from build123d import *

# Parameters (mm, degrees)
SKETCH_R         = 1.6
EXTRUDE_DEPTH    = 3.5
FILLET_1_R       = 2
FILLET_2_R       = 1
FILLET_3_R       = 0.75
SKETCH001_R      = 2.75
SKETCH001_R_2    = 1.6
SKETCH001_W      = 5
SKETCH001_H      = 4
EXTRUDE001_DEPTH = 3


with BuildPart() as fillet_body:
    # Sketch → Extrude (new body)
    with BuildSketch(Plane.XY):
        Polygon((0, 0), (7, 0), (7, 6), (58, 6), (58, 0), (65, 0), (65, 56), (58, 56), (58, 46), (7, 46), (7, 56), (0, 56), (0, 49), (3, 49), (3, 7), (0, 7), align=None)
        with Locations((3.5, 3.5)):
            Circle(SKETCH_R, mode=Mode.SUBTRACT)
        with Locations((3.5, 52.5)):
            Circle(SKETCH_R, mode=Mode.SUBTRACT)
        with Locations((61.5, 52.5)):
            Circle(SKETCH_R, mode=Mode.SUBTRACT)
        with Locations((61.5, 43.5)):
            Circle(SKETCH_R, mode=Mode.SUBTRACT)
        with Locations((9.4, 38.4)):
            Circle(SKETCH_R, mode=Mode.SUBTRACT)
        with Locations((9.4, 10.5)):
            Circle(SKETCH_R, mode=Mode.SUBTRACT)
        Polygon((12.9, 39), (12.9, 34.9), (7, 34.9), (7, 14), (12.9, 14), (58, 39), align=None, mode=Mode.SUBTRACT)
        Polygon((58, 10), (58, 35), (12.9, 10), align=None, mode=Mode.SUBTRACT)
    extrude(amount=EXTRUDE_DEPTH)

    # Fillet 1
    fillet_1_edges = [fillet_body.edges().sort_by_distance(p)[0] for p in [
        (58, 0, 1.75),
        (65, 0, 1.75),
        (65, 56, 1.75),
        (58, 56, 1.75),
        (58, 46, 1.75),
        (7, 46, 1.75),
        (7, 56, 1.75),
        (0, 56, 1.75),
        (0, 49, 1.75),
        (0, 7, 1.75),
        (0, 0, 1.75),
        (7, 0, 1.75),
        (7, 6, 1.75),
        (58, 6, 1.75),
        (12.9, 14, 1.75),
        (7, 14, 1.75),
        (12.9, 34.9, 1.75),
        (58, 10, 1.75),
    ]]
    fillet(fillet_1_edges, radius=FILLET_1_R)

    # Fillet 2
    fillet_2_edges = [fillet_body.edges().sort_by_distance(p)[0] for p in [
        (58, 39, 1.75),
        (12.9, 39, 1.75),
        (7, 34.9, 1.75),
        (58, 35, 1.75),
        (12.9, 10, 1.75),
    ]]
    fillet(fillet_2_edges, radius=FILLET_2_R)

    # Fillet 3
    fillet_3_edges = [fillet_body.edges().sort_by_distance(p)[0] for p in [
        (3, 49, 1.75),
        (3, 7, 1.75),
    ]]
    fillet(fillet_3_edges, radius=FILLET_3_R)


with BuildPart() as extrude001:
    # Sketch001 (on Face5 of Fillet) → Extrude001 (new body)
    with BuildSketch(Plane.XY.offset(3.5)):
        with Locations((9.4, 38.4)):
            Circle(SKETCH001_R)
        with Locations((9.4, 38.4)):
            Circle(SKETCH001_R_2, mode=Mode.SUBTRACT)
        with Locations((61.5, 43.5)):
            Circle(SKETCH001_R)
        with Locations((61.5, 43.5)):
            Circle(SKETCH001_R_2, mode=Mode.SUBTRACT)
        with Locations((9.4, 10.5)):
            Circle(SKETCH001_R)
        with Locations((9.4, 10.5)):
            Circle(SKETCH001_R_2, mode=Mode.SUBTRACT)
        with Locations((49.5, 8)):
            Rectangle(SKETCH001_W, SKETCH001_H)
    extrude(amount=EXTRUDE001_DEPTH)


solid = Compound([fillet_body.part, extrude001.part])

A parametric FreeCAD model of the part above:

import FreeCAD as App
import Part
import Sketcher


def edges_at(feature, points):
    """Names of the edges that pass closest to the given points."""
    edges = feature.Shape.Edges
    near = lambda p: min(range(len(edges)), key=lambda i: edges[i].distToShape(Part.Vertex(*p))[0])
    return sorted({f"Edge{near(p) + 1}" for p in points})

doc = App.newDocument("Part")
body = doc.addObject("PartDesign::Body", "Body")

sketch1 = body.newObject("Sketcher::SketchObject", "Sketch")
sketch1.AttachmentSupport = (doc.getObject("XY_Plane"), [""])
sketch1.MapMode = "FlatFace"
sketch1.addGeometry([
    Part.LineSegment(App.Vector(0, 0, 0), App.Vector(7, 0, 0)),
    Part.LineSegment(App.Vector(7, 0, 0), App.Vector(7, 6, 0)),
    Part.LineSegment(App.Vector(7, 6, 0), App.Vector(58, 6, 0)),
    Part.LineSegment(App.Vector(58, 6, 0), App.Vector(58, 0, 0)),
    Part.LineSegment(App.Vector(58, 0, 0), App.Vector(65, 0, 0)),
    Part.LineSegment(App.Vector(65, 0, 0), App.Vector(65, 56, 0)),
    Part.LineSegment(App.Vector(65, 56, 0), App.Vector(58, 56, 0)),
    Part.LineSegment(App.Vector(58, 56, 0), App.Vector(58, 46, 0)),
    Part.LineSegment(App.Vector(58, 46, 0), App.Vector(7, 46, 0)),
    Part.LineSegment(App.Vector(7, 46, 0), App.Vector(7, 56, 0)),
    Part.LineSegment(App.Vector(7, 56, 0), App.Vector(0, 56, 0)),
    Part.LineSegment(App.Vector(0, 56, 0), App.Vector(0, 49, 0)),
    Part.LineSegment(App.Vector(0, 49, 0), App.Vector(3, 49, 0)),
    Part.LineSegment(App.Vector(3, 49, 0), App.Vector(3, 7, 0)),
    Part.LineSegment(App.Vector(3, 7, 0), App.Vector(0, 7, 0)),
    Part.LineSegment(App.Vector(0, 7, 0), App.Vector(0, 0, 0)),
    Part.Circle(App.Vector(3.5, 3.5, 0), App.Vector(0, 0, 1), 1.6),
    Part.Circle(App.Vector(9.4, 10.5, 0), App.Vector(0, 0, 1), 1.6),
    Part.LineSegment(App.Vector(58, 35, 0), App.Vector(58, 10, 0)),
    Part.LineSegment(App.Vector(58, 10, 0), App.Vector(12.9, 10, 0)),
    Part.LineSegment(App.Vector(12.9, 10, 0), App.Vector(58, 35, 0)),
    Part.LineSegment(App.Vector(12.9, 34.9, 0), App.Vector(12.9, 39, 0)),
    Part.LineSegment(App.Vector(12.9, 39, 0), App.Vector(58, 39, 0)),
    Part.LineSegment(App.Vector(58, 39, 0), App.Vector(12.9, 14, 0)),
    Part.LineSegment(App.Vector(12.9, 14, 0), App.Vector(7, 14, 0)),
    Part.LineSegment(App.Vector(7, 14, 0), App.Vector(7, 34.9, 0)),
    Part.LineSegment(App.Vector(7, 34.9, 0), App.Vector(12.9, 34.9, 0)),
    Part.Circle(App.Vector(9.4, 38.4, 0), App.Vector(0, 0, 1), 1.6),
    Part.Circle(App.Vector(3.5, 52.5, 0), App.Vector(0, 0, 1), 1.6),
    Part.Circle(App.Vector(61.5, 43.5, 0), App.Vector(0, 0, 1), 1.6),
    Part.Circle(App.Vector(61.5, 52.5, 0), App.Vector(0, 0, 1), 1.6),
], False)
sketch1.addConstraint([
    Sketcher.Constraint("Coincident", 0, 2, 1, 1),
    Sketcher.Constraint("Coincident", 1, 2, 2, 1),
    Sketcher.Constraint("Coincident", 2, 2, 3, 1),
    Sketcher.Constraint("Coincident", 3, 2, 4, 1),
    Sketcher.Constraint("Coincident", 4, 2, 5, 1),
    Sketcher.Constraint("Coincident", 5, 2, 6, 1),
    Sketcher.Constraint("Coincident", 6, 2, 7, 1),
    Sketcher.Constraint("Coincident", 7, 2, 8, 1),
    Sketcher.Constraint("Coincident", 8, 2, 9, 1),
    Sketcher.Constraint("Coincident", 9, 2, 10, 1),
    Sketcher.Constraint("Coincident", 10, 2, 11, 1),
    Sketcher.Constraint("Coincident", 11, 2, 12, 1),
    Sketcher.Constraint("Coincident", 12, 2, 13, 1),
    Sketcher.Constraint("Coincident", 13, 2, 14, 1),
    Sketcher.Constraint("Coincident", 14, 2, 15, 1),
    Sketcher.Constraint("Coincident", 15, 2, 0, 1),
    Sketcher.Constraint("Coincident", 18, 2, 19, 1),
    Sketcher.Constraint("Coincident", 19, 2, 20, 1),
    Sketcher.Constraint("Coincident", 20, 2, 18, 1),
    Sketcher.Constraint("Coincident", 21, 2, 22, 1),
    Sketcher.Constraint("Coincident", 22, 2, 23, 1),
    Sketcher.Constraint("Coincident", 23, 2, 24, 1),
    Sketcher.Constraint("Coincident", 24, 2, 25, 1),
    Sketcher.Constraint("Coincident", 25, 2, 26, 1),
    Sketcher.Constraint("Coincident", 26, 2, 21, 1),
    Sketcher.Constraint("Horizontal", 0),
    Sketcher.Constraint("Vertical", 1),
    Sketcher.Constraint("Horizontal", 2),
    Sketcher.Constraint("Vertical", 3),
    Sketcher.Constraint("Horizontal", 4),
    Sketcher.Constraint("Vertical", 5),
    Sketcher.Constraint("Horizontal", 6),
    Sketcher.Constraint("Vertical", 7),
    Sketcher.Constraint("Horizontal", 8),
    Sketcher.Constraint("Vertical", 9),
    Sketcher.Constraint("Horizontal", 10),
    Sketcher.Constraint("Vertical", 11),
    Sketcher.Constraint("Horizontal", 12),
    Sketcher.Constraint("Vertical", 13),
    Sketcher.Constraint("Horizontal", 14),
    Sketcher.Constraint("Vertical", 15),
    Sketcher.Constraint("Vertical", 18),
    Sketcher.Constraint("Horizontal", 19),
    Sketcher.Constraint("Vertical", 21),
    Sketcher.Constraint("Horizontal", 22),
    Sketcher.Constraint("Horizontal", 24),
    Sketcher.Constraint("Vertical", 25),
    Sketcher.Constraint("Horizontal", 26),
    Sketcher.Constraint("Coincident", 15, 2, -1, 1),
    Sketcher.Constraint("Equal", 16, 17),
    Sketcher.Constraint("Equal", 17, 27),
    Sketcher.Constraint("Equal", 27, 28),
    Sketcher.Constraint("Equal", 28, 29),
    Sketcher.Constraint("Equal", 29, 30),
    Sketcher.Constraint("PointOnObject", 3, 2, -1),
    Sketcher.Constraint("PointOnObject", 10, 2, -2),
    Sketcher.Constraint("Parallel", 20, 23),
    Sketcher.Constraint("Horizontal", 28, 3, 30, 3),
    Sketcher.Constraint("Horizontal", 6, 2, 9, 2),
    Sketcher.Constraint("Vertical", 17, 3, 27, 3),
    Sketcher.Constraint("Vertical", 16, 3, 28, 3),
    Sketcher.Constraint("Vertical", 29, 3, 30, 3),
    Sketcher.Constraint("Vertical", 3, 2, 6, 2),
    Sketcher.Constraint("Vertical", 1, 2, 8, 2),
    Sketcher.Constraint("Vertical", 7, 2, 18, 2),
    Sketcher.Constraint("Vertical", 19, 2, 21, 2),
    Sketcher.Constraint("Vertical", 20, 2, 22, 2),
    Sketcher.Constraint("Vertical", 21, 2, 23, 2),
    Sketcher.Constraint("Vertical", 9, 2, 24, 2),
    Sketcher.Constraint("Equal", 0, 4),
    Sketcher.Constraint("Equal", 10, 11),
    Sketcher.Constraint("Equal", 11, 15),
    Sketcher.Constraint("Diameter", 16, 3.2),
    Sketcher.Constraint("DistanceX", 0, 1, 0, 2, 7.0),
    Sketcher.Constraint("DistanceX", 2, 1, 2, 2, 51.0),
    Sketcher.Constraint("DistanceX", 12, 1, 12, 2, 3.0),
    Sketcher.Constraint("DistanceY", 1, 1, 1, 2, 6.0),
    Sketcher.Constraint("DistanceY", 5, 1, 5, 2, 56.0),
    Sketcher.Constraint("DistanceY", 7, 2, 7, 1, 10.0),
    Sketcher.Constraint("DistanceY", 18, 2, 18, 1, 25.0),
    Sketcher.Constraint("DistanceX", 19, 2, 19, 1, 45.1),
    Sketcher.Constraint("DistanceY", 21, 1, 21, 2, 4.1),
    Sketcher.Constraint("DistanceY", -1, 1, 18, 2, 10.0),
    Sketcher.Constraint("DistanceY", -1, 1, 21, 2, 39.0),
    Sketcher.Constraint("DistanceY", 16, 3, 17, 3, 7.0),
    Sketcher.Constraint("DistanceY", 17, 3, 28, 3, 42.0),
    Sketcher.Constraint("DistanceX", 28, 3, 29, 3, 58.0),
    Sketcher.Constraint("DistanceY", 29, 3, 28, 3, 9.0),
    Sketcher.Constraint("DistanceX", -1, 1, 16, 3, 3.5),
    Sketcher.Constraint("DistanceY", -1, 1, 16, 3, 3.5),
    Sketcher.Constraint("DistanceX", -1, 1, 17, 3, 9.4),
    Sketcher.Constraint("DistanceY", -1, 1, 27, 3, 38.4),
])
pad1 = body.newObject("PartDesign::Pad", "Pad")
pad1.Profile = sketch1
pad1.Length = 3.5
doc.recompute()

fillet = body.newObject("PartDesign::Fillet", "Fillet")
fillet.Base = (pad1, edges_at(pad1, [
    (58, 0, 1.75),
    (65, 0, 1.75),
    (65, 56, 1.75),
    (58, 56, 1.75),
    (58, 46, 1.75),
    (7, 46, 1.75),
    (7, 56, 1.75),
    (0, 56, 1.75),
    (0, 49, 1.75),
    (0, 7, 1.75),
    (0, 0, 1.75),
    (7, 0, 1.75),
    (7, 6, 1.75),
    (58, 6, 1.75),
    (12.9, 14, 1.75),
    (7, 14, 1.75),
    (12.9, 34.9, 1.75),
    (58, 10, 1.75),
]))
fillet.Radius = 2
doc.recompute()

fillet2 = body.newObject("PartDesign::Fillet", "Fillet001")
fillet2.Base = (fillet, edges_at(fillet, [
    (58, 39, 1.75),
    (12.9, 39, 1.75),
    (7, 34.9, 1.75),
    (58, 35, 1.75),
    (12.9, 10, 1.75),
]))
fillet2.Radius = 1
doc.recompute()

fillet3 = body.newObject("PartDesign::Fillet", "Fillet002")
fillet3.Base = (fillet2, edges_at(fillet2, [(3, 49, 1.75), (3, 7, 1.75)]))
fillet3.Radius = 0.75
body2 = doc.addObject("PartDesign::Body", "Body001")
body2.AllowCompound = True

sketch2 = body2.newObject("Sketcher::SketchObject", "Sketch001")
sketch2.AttachmentSupport = (doc.getObject("XY_Plane001"), [""])
sketch2.MapMode = "FlatFace"
sketch2.AttachmentOffset = App.Placement(App.Vector(0, 0, 3.5), App.Rotation())
sketch2.addGeometry([
    Part.Circle(App.Vector(9.4, 38.4, 0), App.Vector(0, 0, 1), 2.8),
    Part.Circle(App.Vector(9.4, 38.4, 0), App.Vector(0, 0, 1), 1.6),
    Part.Circle(App.Vector(61.5, 43.5, 0), App.Vector(0, 0, 1), 2.8),
    Part.Circle(App.Vector(61.5, 43.5, 0), App.Vector(0, 0, 1), 1.6),
    Part.Circle(App.Vector(9.4, 10.5, 0), App.Vector(0, 0, 1), 2.8),
    Part.Circle(App.Vector(9.4, 10.5, 0), App.Vector(0, 0, 1), 1.6),
    Part.LineSegment(App.Vector(47, 10, 0), App.Vector(47, 6, 0)),
    Part.LineSegment(App.Vector(47, 6, 0), App.Vector(52, 6, 0)),
    Part.LineSegment(App.Vector(52, 6, 0), App.Vector(52, 10, 0)),
    Part.LineSegment(App.Vector(52, 10, 0), App.Vector(47, 10, 0)),
], False)
sketch2.addConstraint([
    Sketcher.Constraint("Coincident", 6, 2, 7, 1),
    Sketcher.Constraint("Coincident", 7, 2, 8, 1),
    Sketcher.Constraint("Coincident", 8, 2, 9, 1),
    Sketcher.Constraint("Coincident", 9, 2, 6, 1),
    Sketcher.Constraint("Vertical", 6),
    Sketcher.Constraint("Horizontal", 7),
    Sketcher.Constraint("Vertical", 8),
    Sketcher.Constraint("Horizontal", 9),
    Sketcher.Constraint("Coincident", 1, 3, 0, 3),
    Sketcher.Constraint("Coincident", 3, 3, 2, 3),
    Sketcher.Constraint("Coincident", 5, 3, 4, 3),
    Sketcher.Constraint("Equal", 0, 2),
    Sketcher.Constraint("Equal", 1, 3),
    Sketcher.Constraint("Equal", 2, 4),
    Sketcher.Constraint("Equal", 3, 5),
    Sketcher.Constraint("Vertical", 1, 3, 4, 3),
    Sketcher.Constraint("Diameter", 0, 5.5),
    Sketcher.Constraint("Diameter", 1, 3.2),
    Sketcher.Constraint("DistanceX", 7, 1, 7, 2, 5.0),
    Sketcher.Constraint("DistanceY", 6, 2, 6, 1, 4.0),
    Sketcher.Constraint("DistanceX", -1, 1, 6, 2, 47.0),
    Sketcher.Constraint("DistanceY", -1, 1, 6, 2, 6.0),
    Sketcher.Constraint("DistanceY", 4, 3, 2, 3, 33.0),
    Sketcher.Constraint("DistanceX", -1, 1, 0, 3, 9.4),
    Sketcher.Constraint("DistanceY", -1, 1, 0, 3, 38.4),
    Sketcher.Constraint("DistanceX", -1, 1, 2, 3, 61.5),
    Sketcher.Constraint("DistanceY", -1, 1, 2, 3, 43.5),
])
pad2 = body2.newObject("PartDesign::Pad", "Pad001")
pad2.Profile = sketch2
pad2.Length = 3

doc.recompute()
